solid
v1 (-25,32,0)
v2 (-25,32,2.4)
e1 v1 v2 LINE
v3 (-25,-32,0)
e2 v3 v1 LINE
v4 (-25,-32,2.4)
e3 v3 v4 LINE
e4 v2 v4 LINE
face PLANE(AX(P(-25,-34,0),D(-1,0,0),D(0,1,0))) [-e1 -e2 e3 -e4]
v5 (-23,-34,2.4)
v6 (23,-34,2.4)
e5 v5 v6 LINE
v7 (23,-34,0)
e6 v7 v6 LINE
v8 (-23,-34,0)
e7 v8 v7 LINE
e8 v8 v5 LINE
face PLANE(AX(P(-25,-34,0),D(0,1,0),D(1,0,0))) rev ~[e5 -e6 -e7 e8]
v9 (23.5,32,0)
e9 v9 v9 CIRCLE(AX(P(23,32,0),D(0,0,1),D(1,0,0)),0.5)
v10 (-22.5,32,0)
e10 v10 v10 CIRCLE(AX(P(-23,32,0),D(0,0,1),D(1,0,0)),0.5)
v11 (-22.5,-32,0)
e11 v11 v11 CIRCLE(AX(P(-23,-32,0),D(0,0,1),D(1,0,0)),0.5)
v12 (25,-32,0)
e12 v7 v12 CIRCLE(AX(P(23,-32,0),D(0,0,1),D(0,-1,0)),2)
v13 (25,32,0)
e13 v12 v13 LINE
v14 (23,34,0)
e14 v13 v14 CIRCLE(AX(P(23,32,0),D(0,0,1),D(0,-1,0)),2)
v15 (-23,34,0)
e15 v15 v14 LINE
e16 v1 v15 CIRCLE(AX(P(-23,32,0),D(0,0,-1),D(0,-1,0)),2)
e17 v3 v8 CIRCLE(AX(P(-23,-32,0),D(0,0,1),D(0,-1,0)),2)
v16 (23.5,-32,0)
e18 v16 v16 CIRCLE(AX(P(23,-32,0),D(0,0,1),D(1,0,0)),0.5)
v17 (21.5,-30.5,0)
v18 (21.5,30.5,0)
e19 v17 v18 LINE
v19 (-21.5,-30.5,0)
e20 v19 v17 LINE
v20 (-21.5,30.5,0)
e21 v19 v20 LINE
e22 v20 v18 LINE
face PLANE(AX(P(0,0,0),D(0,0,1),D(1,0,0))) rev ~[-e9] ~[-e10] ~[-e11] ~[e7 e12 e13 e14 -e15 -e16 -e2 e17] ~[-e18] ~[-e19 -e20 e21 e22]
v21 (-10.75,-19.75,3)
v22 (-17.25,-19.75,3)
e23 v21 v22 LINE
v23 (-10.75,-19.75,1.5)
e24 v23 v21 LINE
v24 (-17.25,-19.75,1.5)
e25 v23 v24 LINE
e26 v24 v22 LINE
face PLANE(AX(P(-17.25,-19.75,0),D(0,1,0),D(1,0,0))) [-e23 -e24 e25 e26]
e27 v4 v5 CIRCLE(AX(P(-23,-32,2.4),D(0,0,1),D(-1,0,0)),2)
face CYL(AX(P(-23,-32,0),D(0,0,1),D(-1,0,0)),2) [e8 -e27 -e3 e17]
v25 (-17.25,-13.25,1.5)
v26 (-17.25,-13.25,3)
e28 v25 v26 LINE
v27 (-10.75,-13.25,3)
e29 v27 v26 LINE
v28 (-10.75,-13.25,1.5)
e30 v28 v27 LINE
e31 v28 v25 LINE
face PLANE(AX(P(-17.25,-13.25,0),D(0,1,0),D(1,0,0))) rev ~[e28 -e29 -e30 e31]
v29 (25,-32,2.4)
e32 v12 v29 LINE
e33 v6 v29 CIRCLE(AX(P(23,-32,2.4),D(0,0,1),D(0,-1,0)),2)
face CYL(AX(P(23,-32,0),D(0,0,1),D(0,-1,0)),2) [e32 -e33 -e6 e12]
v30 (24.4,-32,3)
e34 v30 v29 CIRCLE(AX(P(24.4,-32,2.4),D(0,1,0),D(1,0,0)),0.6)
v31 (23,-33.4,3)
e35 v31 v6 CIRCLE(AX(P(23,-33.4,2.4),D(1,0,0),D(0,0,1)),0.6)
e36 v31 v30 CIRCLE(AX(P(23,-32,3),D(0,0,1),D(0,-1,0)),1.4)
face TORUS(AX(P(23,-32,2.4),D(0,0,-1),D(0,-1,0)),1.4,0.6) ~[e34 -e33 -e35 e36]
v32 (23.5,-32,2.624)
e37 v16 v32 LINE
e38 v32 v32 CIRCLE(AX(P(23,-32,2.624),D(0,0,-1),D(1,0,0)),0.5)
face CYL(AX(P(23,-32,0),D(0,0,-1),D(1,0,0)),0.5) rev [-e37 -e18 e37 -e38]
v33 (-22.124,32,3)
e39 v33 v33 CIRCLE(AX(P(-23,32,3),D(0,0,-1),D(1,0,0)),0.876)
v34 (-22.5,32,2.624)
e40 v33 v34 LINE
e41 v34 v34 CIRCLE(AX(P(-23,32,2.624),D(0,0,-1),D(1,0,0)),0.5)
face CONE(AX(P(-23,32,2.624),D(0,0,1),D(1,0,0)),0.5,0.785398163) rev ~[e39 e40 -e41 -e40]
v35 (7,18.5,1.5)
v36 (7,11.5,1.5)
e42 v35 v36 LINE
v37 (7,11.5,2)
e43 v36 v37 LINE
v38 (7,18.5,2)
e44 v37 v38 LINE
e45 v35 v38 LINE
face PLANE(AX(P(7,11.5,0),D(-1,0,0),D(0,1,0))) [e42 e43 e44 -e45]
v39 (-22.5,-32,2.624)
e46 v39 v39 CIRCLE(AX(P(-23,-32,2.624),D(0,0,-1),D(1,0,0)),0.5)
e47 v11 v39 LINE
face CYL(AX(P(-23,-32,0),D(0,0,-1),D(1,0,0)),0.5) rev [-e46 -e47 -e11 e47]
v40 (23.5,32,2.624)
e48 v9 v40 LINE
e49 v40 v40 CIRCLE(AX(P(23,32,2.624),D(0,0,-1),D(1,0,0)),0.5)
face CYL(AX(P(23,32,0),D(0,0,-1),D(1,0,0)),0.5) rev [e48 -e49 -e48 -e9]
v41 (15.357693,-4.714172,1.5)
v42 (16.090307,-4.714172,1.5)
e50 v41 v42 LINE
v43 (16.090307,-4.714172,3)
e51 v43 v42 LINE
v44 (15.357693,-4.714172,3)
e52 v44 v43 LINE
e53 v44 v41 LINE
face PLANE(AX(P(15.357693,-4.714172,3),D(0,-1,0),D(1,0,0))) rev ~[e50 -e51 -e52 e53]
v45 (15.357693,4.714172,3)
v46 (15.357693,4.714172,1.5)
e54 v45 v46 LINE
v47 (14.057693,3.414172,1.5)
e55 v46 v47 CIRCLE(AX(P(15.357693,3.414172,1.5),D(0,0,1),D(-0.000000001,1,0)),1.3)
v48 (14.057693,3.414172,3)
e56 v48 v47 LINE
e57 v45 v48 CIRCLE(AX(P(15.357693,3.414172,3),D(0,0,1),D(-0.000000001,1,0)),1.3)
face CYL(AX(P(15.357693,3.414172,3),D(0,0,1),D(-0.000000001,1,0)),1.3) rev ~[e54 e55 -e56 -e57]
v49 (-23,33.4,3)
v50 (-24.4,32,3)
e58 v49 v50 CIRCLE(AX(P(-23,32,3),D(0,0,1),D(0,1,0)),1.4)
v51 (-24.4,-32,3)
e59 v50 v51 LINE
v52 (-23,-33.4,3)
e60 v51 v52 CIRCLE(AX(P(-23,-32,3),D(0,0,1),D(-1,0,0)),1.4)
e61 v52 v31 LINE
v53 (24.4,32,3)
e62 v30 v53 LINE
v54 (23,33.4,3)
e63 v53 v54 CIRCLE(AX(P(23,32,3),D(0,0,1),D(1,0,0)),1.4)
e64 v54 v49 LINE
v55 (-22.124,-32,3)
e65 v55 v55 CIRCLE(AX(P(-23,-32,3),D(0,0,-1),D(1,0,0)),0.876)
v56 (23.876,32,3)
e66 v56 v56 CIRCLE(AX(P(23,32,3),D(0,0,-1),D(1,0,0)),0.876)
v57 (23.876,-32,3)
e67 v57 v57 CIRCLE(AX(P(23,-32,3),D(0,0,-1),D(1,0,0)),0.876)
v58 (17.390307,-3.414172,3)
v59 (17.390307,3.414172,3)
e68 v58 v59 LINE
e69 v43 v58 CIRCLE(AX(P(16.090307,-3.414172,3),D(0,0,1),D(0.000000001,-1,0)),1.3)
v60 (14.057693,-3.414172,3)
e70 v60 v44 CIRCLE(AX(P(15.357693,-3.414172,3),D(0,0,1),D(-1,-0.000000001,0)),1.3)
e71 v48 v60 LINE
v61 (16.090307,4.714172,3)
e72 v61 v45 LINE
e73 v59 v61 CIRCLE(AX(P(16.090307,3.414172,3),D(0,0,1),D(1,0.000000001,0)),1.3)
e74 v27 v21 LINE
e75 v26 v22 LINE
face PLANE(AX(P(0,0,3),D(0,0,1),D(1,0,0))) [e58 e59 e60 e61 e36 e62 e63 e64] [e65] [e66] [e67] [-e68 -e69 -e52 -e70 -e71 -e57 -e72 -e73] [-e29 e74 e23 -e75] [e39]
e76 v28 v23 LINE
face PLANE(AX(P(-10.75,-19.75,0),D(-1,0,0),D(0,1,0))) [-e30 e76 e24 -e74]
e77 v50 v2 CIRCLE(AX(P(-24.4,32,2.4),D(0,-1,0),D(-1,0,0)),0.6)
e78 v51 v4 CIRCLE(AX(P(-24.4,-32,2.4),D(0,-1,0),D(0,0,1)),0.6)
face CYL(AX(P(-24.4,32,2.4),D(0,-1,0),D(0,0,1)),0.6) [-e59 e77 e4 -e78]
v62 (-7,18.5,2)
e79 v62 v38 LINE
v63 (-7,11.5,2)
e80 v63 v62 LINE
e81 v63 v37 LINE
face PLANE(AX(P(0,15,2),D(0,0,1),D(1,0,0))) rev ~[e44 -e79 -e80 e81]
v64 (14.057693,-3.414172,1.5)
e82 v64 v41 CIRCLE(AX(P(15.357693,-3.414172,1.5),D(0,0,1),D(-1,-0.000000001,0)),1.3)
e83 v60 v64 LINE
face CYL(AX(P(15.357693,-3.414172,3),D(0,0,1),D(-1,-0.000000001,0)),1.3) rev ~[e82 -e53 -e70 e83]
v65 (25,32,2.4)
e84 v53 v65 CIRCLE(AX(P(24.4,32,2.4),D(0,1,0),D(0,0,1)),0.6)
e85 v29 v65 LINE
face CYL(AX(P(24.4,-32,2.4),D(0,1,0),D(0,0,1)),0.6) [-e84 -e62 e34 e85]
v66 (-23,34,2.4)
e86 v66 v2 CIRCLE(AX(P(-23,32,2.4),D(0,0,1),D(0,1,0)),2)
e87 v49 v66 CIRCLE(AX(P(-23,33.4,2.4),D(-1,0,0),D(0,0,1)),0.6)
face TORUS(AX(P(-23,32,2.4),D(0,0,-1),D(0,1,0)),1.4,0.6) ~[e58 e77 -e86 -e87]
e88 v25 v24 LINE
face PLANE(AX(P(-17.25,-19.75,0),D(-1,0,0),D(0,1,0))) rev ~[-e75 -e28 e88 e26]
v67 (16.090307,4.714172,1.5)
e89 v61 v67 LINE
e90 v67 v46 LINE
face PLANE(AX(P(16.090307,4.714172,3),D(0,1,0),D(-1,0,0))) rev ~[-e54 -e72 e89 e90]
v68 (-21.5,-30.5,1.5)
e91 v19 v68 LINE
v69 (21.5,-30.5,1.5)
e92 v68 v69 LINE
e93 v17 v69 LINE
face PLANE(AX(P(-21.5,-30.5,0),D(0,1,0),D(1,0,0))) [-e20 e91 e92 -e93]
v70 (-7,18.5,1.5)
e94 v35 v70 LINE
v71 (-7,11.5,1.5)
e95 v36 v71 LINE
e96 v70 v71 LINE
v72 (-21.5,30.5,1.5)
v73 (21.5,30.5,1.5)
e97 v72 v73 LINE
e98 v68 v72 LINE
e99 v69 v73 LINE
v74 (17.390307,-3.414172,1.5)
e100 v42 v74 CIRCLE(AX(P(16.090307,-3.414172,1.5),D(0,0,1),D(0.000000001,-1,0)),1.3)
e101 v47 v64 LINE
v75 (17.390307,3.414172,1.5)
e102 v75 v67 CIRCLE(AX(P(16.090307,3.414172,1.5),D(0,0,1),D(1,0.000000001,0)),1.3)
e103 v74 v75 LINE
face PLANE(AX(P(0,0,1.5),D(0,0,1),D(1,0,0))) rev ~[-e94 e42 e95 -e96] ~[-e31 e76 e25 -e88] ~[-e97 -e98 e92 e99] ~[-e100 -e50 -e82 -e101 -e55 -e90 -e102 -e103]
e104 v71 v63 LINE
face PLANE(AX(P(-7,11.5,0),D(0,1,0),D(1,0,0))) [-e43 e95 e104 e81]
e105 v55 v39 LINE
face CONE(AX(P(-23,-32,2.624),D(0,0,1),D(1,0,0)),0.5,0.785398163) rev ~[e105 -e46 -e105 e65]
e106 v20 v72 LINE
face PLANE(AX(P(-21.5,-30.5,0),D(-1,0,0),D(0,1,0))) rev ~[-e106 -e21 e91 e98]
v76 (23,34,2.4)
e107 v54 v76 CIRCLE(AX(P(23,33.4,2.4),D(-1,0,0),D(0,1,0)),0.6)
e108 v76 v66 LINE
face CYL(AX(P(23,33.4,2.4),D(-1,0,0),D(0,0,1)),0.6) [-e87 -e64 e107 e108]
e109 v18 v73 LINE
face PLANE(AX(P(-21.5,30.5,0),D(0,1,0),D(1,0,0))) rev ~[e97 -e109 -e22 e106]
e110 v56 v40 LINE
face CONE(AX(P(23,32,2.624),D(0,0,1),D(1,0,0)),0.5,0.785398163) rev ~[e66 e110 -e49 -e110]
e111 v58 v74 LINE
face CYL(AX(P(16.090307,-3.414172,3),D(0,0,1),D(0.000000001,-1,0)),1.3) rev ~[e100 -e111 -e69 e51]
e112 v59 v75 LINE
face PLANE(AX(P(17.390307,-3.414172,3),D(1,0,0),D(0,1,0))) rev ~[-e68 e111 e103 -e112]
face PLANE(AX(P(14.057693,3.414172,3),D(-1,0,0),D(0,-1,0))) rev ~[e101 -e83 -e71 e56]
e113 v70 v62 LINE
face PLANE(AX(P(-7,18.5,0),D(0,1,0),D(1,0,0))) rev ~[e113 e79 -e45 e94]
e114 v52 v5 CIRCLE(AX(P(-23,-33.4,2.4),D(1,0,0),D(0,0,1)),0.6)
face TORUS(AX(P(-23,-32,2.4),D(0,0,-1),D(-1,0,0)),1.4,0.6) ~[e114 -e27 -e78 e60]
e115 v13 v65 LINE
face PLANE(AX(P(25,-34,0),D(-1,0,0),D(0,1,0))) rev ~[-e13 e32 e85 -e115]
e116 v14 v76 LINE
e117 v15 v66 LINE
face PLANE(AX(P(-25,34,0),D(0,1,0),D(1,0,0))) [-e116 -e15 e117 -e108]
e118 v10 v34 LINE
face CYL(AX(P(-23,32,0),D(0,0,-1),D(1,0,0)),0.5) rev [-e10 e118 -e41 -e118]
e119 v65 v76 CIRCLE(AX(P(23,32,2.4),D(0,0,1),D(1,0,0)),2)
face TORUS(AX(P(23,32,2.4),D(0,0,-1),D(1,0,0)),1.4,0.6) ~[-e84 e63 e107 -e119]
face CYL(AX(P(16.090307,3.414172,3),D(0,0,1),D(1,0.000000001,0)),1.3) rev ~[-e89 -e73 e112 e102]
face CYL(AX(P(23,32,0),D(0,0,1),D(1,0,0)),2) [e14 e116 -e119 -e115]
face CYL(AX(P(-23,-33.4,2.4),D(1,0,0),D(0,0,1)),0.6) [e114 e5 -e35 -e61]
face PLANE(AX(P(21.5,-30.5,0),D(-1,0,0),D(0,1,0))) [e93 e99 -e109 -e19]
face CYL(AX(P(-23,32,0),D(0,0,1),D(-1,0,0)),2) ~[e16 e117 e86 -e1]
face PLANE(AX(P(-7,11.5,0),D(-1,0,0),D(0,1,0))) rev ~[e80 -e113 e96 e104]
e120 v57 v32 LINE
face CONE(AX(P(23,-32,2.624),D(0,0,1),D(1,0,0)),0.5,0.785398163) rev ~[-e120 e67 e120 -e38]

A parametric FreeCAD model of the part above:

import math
import FreeCAD as App
import Part
import Sketcher

V = App.Vector
Q = App.Units.Quantity


def edges_at(feature, points):
    """Names of the edges that pass closest to the given points."""
    edges = feature.Shape.Edges
    near = lambda p: min(range(len(edges)), key=lambda i: edges[i].distToShape(Part.Vertex(*p))[0])
    return sorted({f"Edge{near(p) + 1}" for p in points})


def add_polygon(sketch, points):
    """Adds a closed chain of lines whose ends are joined by coincident constraints."""
    first, n = sketch.GeometryCount, len(points)
    for a, b in zip(points, points[1:] + points[:1]):
        sketch.addGeometry(Part.LineSegment(App.Vector(*a, 0), App.Vector(*b, 0)), False)
    for i in range(n):
        sketch.addConstraint(Sketcher.Constraint("Coincident", first + i, 2, first + (i + 1) % n, 1))

doc = App.newDocument("Part")
body = doc.addObject("PartDesign::Body", "Body")

# Sketch on XY plane
sketch1 = body.newObject("Sketcher::SketchObject", "Sketch")
sketch1.AttachmentSupport = (doc.getObject("XY_Plane"), [""])
sketch1.MapMode = "FlatFace"
add_polygon(sketch1, [(-25, 34), (-25, -34), (25, -34), (25, 34)])  # lines 0-3
sketch1.addConstraint([
    Sketcher.Constraint("Vertical", 0),
    Sketcher.Constraint("Horizontal", 1),
    Sketcher.Constraint("Vertical", 2),
    Sketcher.Constraint("Horizontal", 3),
    Sketcher.Constraint("Symmetric", 0, 2, 2, 2, -1, 1),
    Sketcher.Constraint("DistanceX", 1, 1, 1, 2, Q("50 mm")),
    Sketcher.Constraint("DistanceY", 0, 2, 0, 1, Q("68 mm")),
])
pad1 = body.newObject("PartDesign::Pad", "Pad")
pad1.Profile = sketch1
pad1.Length = 3
doc.recompute()

fillet = body.newObject("PartDesign::Fillet", "Fillet")
fillet.Base = (pad1, edges_at(pad1, [
    (-25, -34, 1.5),
    (-25, 34, 1.5),
    (25, 34, 1.5),
    (25, -34, 1.5),
]))
fillet.Radius = 2

# Sketch on XY plane
sketch2 = body.newObject("Sketcher::SketchObject", "Sketch001")
sketch2.AttachmentSupport = (doc.getObject("XY_Plane"), [""])
sketch2.MapMode = "FlatFace"
sketch2.addGeometry([
    Part.Circle(V(23, 32, 0), V(0, 0, 1), 0.5),
    Part.Circle(V(-23, 32, 0), V(0, 0, 1), 0.5),
    Part.Circle(V(-23, -32, 0), V(0, 0, 1), 0.5),
    Part.Circle(V(23, -32, 0), V(0, 0, 1), 0.5),
], False)
sketch2.addConstraint([
    Sketcher.Constraint("Equal", 0, 1),
    Sketcher.Constraint("Equal", 1, 2),
    Sketcher.Constraint("Equal", 2, 3),
    Sketcher.Constraint("Symmetric", 0, 3, 2, 3, -1, 1),
    Sketcher.Constraint("Symmetric", 1, 3, 3, 3, -1, 1),
    Sketcher.Constraint("Symmetric", 0, 3, 1, 3, -2),
    Sketcher.Constraint("Diameter", 0, Q("1 mm")),
    Sketcher.Constraint("DistanceX", -1, 1, 0, 3, Q("23 mm")),
    Sketcher.Constraint("DistanceY", -1, 1, 0, 3, Q("32 mm")),
])
pocket1 = body.newObject("PartDesign::Pocket", "Pocket")
pocket1.Profile = sketch2
pocket1.Type = "ThroughAll"
pocket1.Reversed = True

# Sketch on XY plane
sketch3 = body.newObject("Sketcher::SketchObject", "Sketch002")
sketch3.AttachmentSupport = (doc.getObject("XY_Plane"), [""])
sketch3.MapMode = "FlatFace"
add_polygon(sketch3, [(-22, 30), (-22, -30), (22, -30), (22, 30)])  # lines 0-3
sketch3.addConstraint([
    Sketcher.Constraint("Vertical", 0),
    Sketcher.Constraint("Horizontal", 1),
    Sketcher.Constraint("Vertical", 2),
    Sketcher.Constraint("Horizontal", 3),
    Sketcher.Constraint("Symmetric", 0, 2, 2, 2, -1, 1),
    Sketcher.Constraint("DistanceX", 1, 1, 1, 2, Q("43 mm")),
    Sketcher.Constraint("DistanceY", 0, 2, 0, 1, Q("61 mm")),
])
pocket2 = body.newObject("PartDesign::Pocket", "Pocket001")
pocket2.Profile = sketch3
pocket2.Length = 1.5
pocket2.Reversed = True
doc.recompute()

chamfer = body.newObject("PartDesign::Chamfer", "Chamfer")
chamfer.Base = (pocket2, edges_at(pocket2, [
    (22.5, -32, 3),
    (-23.5, -32, 3),
    (-23.5, 32, 3),
    (22.5, 32, 3),
]))
chamfer.Size = 0.376

# Sketch on XY plane
sketch4 = body.newObject("Sketcher::SketchObject", "Sketch003")
sketch4.AttachmentSupport = (doc.getObject("XY_Plane"), [""])
sketch4.MapMode = "FlatFace"
sketch4.AttachmentOffset = App.Placement(V(0, 0, 3), App.Rotation())
sketch4.addGeometry([
    Part.LineSegment(V(15.4, -4.7, 0), V(16.1, -4.7, 0)),  # 0
    Part.ArcOfCircle(Part.Circle(V(16.1, -3.4, 0), V(0, 0, 1), 1.3), math.radians(-90), math.radians(0)),  # 1
    Part.LineSegment(V(17.4, -3.4, 0), V(17.4, 3.4, 0)),  # 2
    Part.ArcOfCircle(Part.Circle(V(16.1, 3.4, 0), V(0, 0, 1), 1.3), math.radians(0), math.radians(90)),  # 3
    Part.LineSegment(V(16.1, 4.7, 0), V(15.4, 4.7, 0)),  # 4
    Part.ArcOfCircle(Part.Circle(V(15.4, 3.4, 0), V(0, 0, 1), 1.3), math.radians(90), math.radians(180)),  # 5
    Part.LineSegment(V(14.1, 3.4, 0), V(14.1, -3.4, 0)),  # 6
    Part.ArcOfCircle(Part.Circle(V(15.4, -3.4, 0), V(0, 0, 1), 1.3), math.radians(-180), math.radians(-90)),  # 7
], False)
sketch4.addConstraint([
    Sketcher.Constraint("Tangent", 0, 2, 1, 1),
    Sketcher.Constraint("Tangent", 1, 2, 2, 1),
    Sketcher.Constraint("Tangent", 2, 2, 3, 1),
    Sketcher.Constraint("Tangent", 3, 2, 4, 1),
    Sketcher.Constraint("Tangent", 4, 2, 5, 1),
    Sketcher.Constraint("Tangent", 5, 2, 6, 1),
    Sketcher.Constraint("Tangent", 6, 2, 7, 1),
    Sketcher.Constraint("Tangent", 7, 2, 0, 1),
    Sketcher.Constraint("Horizontal", 0),
    Sketcher.Constraint("Vertical", 2),
    Sketcher.Constraint("Horizontal", 4),
    Sketcher.Constraint("Vertical", 6),
    Sketcher.Constraint("Equal", 1, 3),
    Sketcher.Constraint("Equal", 3, 5),
    Sketcher.Constraint("Equal", 5, 7),
    Sketcher.Constraint("Radius", 1, Q("1.3 mm")),
    Sketcher.Constraint("DistanceX", 0, 1, 0, 2, Q("0.732614 mm")),
    Sketcher.Constraint("DistanceY", 2, 1, 2, 2, Q("6.828345 mm")),
    Sketcher.Constraint("DistanceX", -1, 1, 1, 3, Q("16.090307 mm")),
    Sketcher.Constraint("DistanceY", 1, 3, -1, 1, Q("3.414172 mm")),
])
pocket3 = body.newObject("PartDesign::Pocket", "Pocket002")
pocket3.Profile = sketch4
pocket3.Type = "ThroughAll"

# Sketch on XY plane
sketch5 = body.newObject("Sketcher::SketchObject", "Sketch004")
sketch5.AttachmentSupport = (doc.getObject("XY_Plane"), [""])
sketch5.MapMode = "FlatFace"
add_polygon(sketch5, [(-7, 18), (-7, 12), (7, 12), (7, 18)])  # lines 0-3
sketch5.addConstraint([
    Sketcher.Constraint("Vertical", 0),
    Sketcher.Constraint("Horizontal", 1),
    Sketcher.Constraint("Vertical", 2),
    Sketcher.Constraint("Horizontal", 3),
    Sketcher.Constraint("DistanceX", 1, 1, 1, 2, Q("14 mm")),
    Sketcher.Constraint("DistanceY", 0, 2, 0, 1, Q("7 mm")),
    Sketcher.Constraint("DistanceX", 0, 2, -1, 1, Q("7 mm")),
    Sketcher.Constraint("DistanceY", -1, 1, 0, 2, Q("11.5 mm")),
])
pocket4 = body.newObject("PartDesign::Pocket", "Pocket003")
pocket4.Profile = sketch5
pocket4.Length = 2
pocket4.Reversed = True

# Sketch on XY plane
sketch6 = body.newObject("Sketcher::SketchObject", "Sketch005")
sketch6.AttachmentSupport = (doc.getObject("XY_Plane"), [""])
sketch6.MapMode = "FlatFace"
add_polygon(sketch6, [(-17, -13), (-17, -20), (-11, -20), (-11, -13)])  # lines 0-3
sketch6.addConstraint([
    Sketcher.Constraint("Vertical", 0),
    Sketcher.Constraint("Horizontal", 1),
    Sketcher.Constraint("Vertical", 2),
    Sketcher.Constraint("Horizontal", 3),
    Sketcher.Constraint("Equal", 3, 0),
    Sketcher.Constraint("DistanceX", 1, 1, 1, 2, Q("6.5 mm")),
    Sketcher.Constraint("DistanceX", 0, 2, -1, 1, Q("17.25 mm")),
    Sketcher.Constraint("DistanceY", 0, 2, -1, 1, Q("19.75 mm")),
])
pocket5 = body.newObject("PartDesign::Pocket", "Pocket004")
pocket5.Profile = sketch6
pocket5.Type = "ThroughAll"
pocket5.Reversed = True
doc.recompute()

fillet2 = body.newObject("PartDesign::Fillet", "Fillet001")
fillet2.Base = (pocket5, edges_at(pocket5, [
    (0, -34, 3),
    (-25, 0, 3),
    (25, 0, 3),
    (0, 34, 3),
    (-24.414, 33.414, 3),
    (24.414, 33.414, 3),
    (24.414, -33.414, 3),
    (-24.414, -33.414, 3),
]))
fillet2.Radius = 0.6

doc.recompute()
